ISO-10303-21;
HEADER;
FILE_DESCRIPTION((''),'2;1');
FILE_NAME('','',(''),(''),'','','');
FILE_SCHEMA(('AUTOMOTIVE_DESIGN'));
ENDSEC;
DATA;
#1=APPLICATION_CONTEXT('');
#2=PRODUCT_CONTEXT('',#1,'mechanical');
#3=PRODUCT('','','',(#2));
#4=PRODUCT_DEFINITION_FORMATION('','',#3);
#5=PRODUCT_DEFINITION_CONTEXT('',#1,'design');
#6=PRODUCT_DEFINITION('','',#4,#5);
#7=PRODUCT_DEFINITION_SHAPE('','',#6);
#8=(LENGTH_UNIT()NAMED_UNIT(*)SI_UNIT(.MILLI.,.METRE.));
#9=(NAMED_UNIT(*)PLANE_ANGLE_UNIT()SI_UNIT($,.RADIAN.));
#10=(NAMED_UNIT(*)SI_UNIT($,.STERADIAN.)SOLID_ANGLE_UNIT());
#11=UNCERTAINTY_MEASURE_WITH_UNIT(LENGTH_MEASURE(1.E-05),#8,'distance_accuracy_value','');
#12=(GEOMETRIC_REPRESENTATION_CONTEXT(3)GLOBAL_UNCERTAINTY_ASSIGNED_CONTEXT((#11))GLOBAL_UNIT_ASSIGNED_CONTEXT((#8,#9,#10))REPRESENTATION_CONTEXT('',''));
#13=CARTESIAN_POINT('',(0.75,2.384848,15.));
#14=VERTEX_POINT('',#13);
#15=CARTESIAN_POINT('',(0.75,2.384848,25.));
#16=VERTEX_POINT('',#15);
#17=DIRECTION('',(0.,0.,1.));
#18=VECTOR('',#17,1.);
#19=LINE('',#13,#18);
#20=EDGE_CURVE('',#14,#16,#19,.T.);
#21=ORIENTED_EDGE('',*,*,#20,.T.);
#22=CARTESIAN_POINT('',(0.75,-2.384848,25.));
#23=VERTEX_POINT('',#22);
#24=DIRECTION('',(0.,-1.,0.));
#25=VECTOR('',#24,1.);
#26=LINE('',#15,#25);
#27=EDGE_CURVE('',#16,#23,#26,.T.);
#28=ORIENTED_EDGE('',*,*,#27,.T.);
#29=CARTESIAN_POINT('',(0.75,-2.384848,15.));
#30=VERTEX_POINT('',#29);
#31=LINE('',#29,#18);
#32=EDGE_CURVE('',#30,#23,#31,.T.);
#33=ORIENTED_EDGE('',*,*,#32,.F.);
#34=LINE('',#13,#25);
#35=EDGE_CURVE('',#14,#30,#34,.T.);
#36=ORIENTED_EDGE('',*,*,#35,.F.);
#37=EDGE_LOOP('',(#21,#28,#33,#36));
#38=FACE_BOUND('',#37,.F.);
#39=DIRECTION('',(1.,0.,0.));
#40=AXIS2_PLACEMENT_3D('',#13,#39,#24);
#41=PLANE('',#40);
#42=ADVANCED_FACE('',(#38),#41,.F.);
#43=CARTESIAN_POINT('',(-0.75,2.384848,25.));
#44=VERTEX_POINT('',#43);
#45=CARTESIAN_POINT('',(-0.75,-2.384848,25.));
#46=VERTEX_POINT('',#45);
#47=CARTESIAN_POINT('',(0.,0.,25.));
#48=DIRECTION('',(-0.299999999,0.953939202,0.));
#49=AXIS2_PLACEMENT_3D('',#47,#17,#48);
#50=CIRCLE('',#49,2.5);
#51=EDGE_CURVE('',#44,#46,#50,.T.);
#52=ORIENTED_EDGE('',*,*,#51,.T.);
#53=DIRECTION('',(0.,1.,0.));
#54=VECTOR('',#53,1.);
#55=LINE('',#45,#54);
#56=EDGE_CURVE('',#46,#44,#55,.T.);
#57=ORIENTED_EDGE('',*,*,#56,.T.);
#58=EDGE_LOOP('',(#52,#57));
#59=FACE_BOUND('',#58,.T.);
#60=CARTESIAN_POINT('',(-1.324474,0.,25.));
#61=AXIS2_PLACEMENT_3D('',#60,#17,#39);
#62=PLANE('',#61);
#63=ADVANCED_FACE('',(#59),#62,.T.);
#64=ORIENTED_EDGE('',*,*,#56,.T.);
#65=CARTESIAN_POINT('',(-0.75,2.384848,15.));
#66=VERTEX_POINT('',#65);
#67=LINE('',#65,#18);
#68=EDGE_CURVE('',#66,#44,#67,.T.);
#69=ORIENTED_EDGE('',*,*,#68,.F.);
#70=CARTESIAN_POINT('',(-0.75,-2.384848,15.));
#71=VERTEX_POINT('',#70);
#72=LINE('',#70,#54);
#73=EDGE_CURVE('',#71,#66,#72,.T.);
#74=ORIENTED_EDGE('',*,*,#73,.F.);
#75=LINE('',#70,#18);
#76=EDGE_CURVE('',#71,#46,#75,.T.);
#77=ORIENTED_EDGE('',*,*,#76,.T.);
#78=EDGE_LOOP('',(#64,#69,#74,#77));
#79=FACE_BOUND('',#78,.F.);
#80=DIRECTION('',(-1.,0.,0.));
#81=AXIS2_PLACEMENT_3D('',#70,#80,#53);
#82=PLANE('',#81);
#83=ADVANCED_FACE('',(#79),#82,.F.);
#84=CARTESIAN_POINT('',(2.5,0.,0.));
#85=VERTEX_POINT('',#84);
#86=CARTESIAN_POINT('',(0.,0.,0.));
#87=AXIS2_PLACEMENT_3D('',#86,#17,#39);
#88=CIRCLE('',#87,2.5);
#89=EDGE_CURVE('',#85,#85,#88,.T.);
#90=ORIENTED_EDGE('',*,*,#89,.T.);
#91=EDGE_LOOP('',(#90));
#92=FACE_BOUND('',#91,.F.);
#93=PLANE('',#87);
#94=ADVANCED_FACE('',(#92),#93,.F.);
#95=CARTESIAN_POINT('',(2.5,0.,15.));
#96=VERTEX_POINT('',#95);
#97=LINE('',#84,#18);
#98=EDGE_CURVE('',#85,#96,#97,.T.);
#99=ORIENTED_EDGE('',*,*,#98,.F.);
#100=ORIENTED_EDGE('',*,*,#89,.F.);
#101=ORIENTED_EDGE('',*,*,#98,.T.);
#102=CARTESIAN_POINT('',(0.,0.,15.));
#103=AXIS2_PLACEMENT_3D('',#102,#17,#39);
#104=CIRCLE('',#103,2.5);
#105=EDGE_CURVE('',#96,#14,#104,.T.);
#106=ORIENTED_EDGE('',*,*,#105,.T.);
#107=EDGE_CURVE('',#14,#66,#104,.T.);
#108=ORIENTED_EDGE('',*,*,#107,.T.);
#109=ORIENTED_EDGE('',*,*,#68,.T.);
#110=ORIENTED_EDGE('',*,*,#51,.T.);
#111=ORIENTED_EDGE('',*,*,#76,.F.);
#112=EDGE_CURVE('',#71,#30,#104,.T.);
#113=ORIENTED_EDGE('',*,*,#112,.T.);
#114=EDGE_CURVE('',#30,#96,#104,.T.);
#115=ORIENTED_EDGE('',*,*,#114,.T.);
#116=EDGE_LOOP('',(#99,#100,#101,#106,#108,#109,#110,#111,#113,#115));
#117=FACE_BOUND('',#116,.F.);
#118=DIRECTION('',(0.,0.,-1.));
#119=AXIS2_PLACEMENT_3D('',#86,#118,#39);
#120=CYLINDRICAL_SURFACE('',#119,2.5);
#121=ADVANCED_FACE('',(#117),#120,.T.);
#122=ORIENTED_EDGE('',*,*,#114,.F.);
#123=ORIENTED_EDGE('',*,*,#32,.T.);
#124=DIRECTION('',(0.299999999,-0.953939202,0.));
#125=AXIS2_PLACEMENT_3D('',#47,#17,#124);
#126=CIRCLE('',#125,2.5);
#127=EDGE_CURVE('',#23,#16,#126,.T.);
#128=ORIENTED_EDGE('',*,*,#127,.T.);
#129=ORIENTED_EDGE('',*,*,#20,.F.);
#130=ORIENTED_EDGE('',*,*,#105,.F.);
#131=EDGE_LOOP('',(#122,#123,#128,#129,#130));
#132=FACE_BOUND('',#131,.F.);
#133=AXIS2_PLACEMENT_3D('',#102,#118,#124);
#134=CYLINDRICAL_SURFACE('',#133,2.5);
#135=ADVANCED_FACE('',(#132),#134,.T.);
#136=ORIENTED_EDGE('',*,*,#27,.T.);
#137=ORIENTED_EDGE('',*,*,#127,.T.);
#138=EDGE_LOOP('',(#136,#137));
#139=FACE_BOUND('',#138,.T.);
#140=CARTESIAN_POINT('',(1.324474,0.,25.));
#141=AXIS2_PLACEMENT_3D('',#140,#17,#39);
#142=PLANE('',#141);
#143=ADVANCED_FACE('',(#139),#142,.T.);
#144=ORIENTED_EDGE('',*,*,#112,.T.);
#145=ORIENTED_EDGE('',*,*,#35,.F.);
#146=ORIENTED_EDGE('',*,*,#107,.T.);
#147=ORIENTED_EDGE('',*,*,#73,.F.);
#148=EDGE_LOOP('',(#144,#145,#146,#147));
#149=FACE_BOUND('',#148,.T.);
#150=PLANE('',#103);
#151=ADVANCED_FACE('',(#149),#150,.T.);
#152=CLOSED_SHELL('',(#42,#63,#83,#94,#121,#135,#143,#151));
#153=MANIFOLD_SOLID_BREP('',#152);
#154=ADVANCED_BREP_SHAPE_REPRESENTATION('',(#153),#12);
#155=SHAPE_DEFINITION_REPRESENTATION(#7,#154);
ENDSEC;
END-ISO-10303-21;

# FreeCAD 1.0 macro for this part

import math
import FreeCAD as App
import Part
import Sketcher

V = App.Vector
Q = App.Units.Quantity

doc = App.newDocument("Part")
body = doc.addObject("PartDesign::Body", "Body")

# Sketch on XY plane
sketch1 = body.newObject("Sketcher::SketchObject", "Sketch")
sketch1.AttachmentSupport = (doc.getObject("XY_Plane"), [""])
sketch1.MapMode = "FlatFace"
sketch1.addGeometry(Part.Circle(V(0, 0, 0), V(0, 0, 1), 2.5), False)
sketch1.addConstraint([
    Sketcher.Constraint("Coincident", 0, 3, -1, 1),
    Sketcher.Constraint("Diameter", 0, Q("5 mm")),
])
pad1 = body.newObject("PartDesign::Pad", "Pad")
pad1.Profile = sketch1
pad1.Length = 15

# Sketch on XY plane
sketch2 = body.newObject("Sketcher::SketchObject", "Sketch001")
sketch2.AttachmentSupport = (doc.getObject("XY_Plane"), [""])
sketch2.MapMode = "FlatFace"
sketch2.AttachmentOffset = App.Placement(V(0, 0, 15), App.Rotation())
sketch2.addGeometry([
    Part.ArcOfCircle(Part.Circle(V(0, 0, 0), V(0, 0, 1), 2.5), math.radians(107), math.radians(253)),
    Part.LineSegment(V(-0.8, -2.4, 0), V(-0.8, 2.4, 0)),
    Part.LineSegment(V(0.8, 2.4, 0), V(0.8, -2.4, 0)),
    Part.ArcOfCircle(Part.Circle(V(0, 0, 0), V(0, 0, 1), 2.5), math.radians(-73), math.radians(73)),
], False)
sketch2.addConstraint([
    Sketcher.Constraint("Coincident", 0, 1, 1, 2),
    Sketcher.Constraint("Coincident", 1, 1, 0, 2),
    Sketcher.Constraint("Coincident", 2, 1, 3, 2),
    Sketcher.Constraint("Coincident", 3, 1, 2, 2),
    Sketcher.Constraint("Vertical", 1),
    Sketcher.Constraint("Vertical", 2),
    Sketcher.Constraint("Coincident", 0, 3, -1, 1),
    Sketcher.Constraint("Coincident", 3, 3, -1, 1),
    Sketcher.Constraint("Equal", 0, 3),
    Sketcher.Constraint("Horizontal", 0, 1, 2, 1),
    Sketcher.Constraint("Radius", 0, Q("2.5 mm")),
    Sketcher.Constraint("DistanceX", 0, 1, 2, 1, Q("1.5 mm")),
])
pad2 = body.newObject("PartDesign::Pad", "Pad001")
pad2.Profile = sketch2
pad2.Length = 10

doc.recompute()
